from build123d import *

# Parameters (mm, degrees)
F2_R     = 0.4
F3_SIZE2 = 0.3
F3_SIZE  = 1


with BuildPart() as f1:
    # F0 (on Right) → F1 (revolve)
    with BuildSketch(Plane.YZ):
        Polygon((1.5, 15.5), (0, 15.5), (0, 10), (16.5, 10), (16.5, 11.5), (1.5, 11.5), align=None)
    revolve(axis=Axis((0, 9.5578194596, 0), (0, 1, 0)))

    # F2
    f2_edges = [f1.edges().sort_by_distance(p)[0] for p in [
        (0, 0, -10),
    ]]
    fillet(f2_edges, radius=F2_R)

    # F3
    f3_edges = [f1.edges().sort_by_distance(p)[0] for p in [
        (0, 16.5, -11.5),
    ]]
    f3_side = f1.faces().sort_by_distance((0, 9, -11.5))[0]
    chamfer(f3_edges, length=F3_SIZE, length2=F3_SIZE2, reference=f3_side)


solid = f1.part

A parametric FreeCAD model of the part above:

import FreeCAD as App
import Part
import Sketcher
from FreeCAD import Vector
Q = App.Units.Quantity


def edges_at(feature, points):
    """Names of the edges that pass closest to the given points."""
    edges = feature.Shape.Edges
    near = lambda p: min(range(len(edges)), key=lambda i: edges[i].distToShape(Part.Vertex(*p))[0])
    return sorted({f"Edge{near(p) + 1}" for p in points})


def add_polygon(sketch, points):
    """Adds a closed chain of lines whose ends are joined by coincident constraints."""
    first, n = sketch.GeometryCount, len(points)
    for a, b in zip(points, points[1:] + points[:1]):
        sketch.addGeometry(Part.LineSegment(App.Vector(*a, 0), App.Vector(*b, 0)), False)
    for i in range(n):
        sketch.addConstraint(Sketcher.Constraint("Coincident", first + i, 2, first + (i + 1) % n, 1))

doc = App.newDocument("Part")
params = doc.addObject("Spreadsheet::Sheet", "Params")
for row, (alias, value) in enumerate([
    ("sketch1_width", "15 mm"),
    ("sketch1_height", "4 mm"),
    ("sketch1_width2", "1.5 mm"),
    ("revolution_angle", "360 deg"),
    ("fillet_radius", "0.4 mm"),
    ("chamfer_size", "1 mm"),
    ("chamfer_size2", "0.3 mm"),
], start=1):
    params.set(f"A{row}", alias)
    params.set(f"B{row}", "=" + value)
    params.setAlias(f"B{row}", alias)

body = doc.addObject("PartDesign::Body", "Body")

sketch1 = body.newObject("Sketcher::SketchObject", "Sketch")
sketch1.AttachmentSupport = (doc.getObject("YZ_Plane"), [""])
sketch1.MapMode = "FlatFace"
add_polygon(sketch1, [(1.5, 15.5), (0, 15.5), (0, 10), (16.5, 10), (16.5, 11.5), (1.5, 11.5)])
sketch1.addConstraint([
    Sketcher.Constraint("Horizontal", 0),
    Sketcher.Constraint("Vertical", 1),
    Sketcher.Constraint("Horizontal", 2),
    Sketcher.Constraint("Vertical", 3),
    Sketcher.Constraint("Horizontal", 4),
    Sketcher.Constraint("Vertical", 5),
    Sketcher.Constraint("PointOnObject", 0, 2, -2),
    Sketcher.Constraint("Equal", 0, 3),
    Sketcher.Constraint("DistanceX", 4, 2, 4, 1, Q("15 mm")),
    Sketcher.Constraint("DistanceY", 5, 1, 5, 2, Q("4 mm")),
    Sketcher.Constraint("DistanceX", 0, 2, 0, 1, Q("1.5 mm")),
    Sketcher.Constraint("DistanceY", -1, 1, 1, 2, Q("10 mm")),
])
sketch1.setExpression("Constraints[14]", "Params.sketch1_width")
sketch1.setExpression("Constraints[15]", "Params.sketch1_height")
sketch1.setExpression("Constraints[16]", "Params.sketch1_width2")
revolution = body.newObject("PartDesign::Revolution", "Revolution")
revolution.Profile = sketch1
revolution.ReferenceAxis = (sketch1, ["H_Axis"])
revolution.setExpression("Angle", "Params.revolution_angle")
doc.recompute()

fillet = body.newObject("PartDesign::Fillet", "Fillet")
fillet.Base = (revolution, edges_at(revolution, [(0, 0, -10)]))
fillet.setExpression("Radius", "Params.fillet_radius")
doc.recompute()

chamfer = body.newObject("PartDesign::Chamfer", "Chamfer")
chamfer.Base = (fillet, edges_at(fillet, [(0, 16.5, -11.5)]))
chamfer.ChamferType = "Two distances"
chamfer.setExpression("Size", "Params.chamfer_size")
chamfer.setExpression("Size2", "Params.chamfer_size2")
chamfer.FlipDirection = True

doc.recompute()
